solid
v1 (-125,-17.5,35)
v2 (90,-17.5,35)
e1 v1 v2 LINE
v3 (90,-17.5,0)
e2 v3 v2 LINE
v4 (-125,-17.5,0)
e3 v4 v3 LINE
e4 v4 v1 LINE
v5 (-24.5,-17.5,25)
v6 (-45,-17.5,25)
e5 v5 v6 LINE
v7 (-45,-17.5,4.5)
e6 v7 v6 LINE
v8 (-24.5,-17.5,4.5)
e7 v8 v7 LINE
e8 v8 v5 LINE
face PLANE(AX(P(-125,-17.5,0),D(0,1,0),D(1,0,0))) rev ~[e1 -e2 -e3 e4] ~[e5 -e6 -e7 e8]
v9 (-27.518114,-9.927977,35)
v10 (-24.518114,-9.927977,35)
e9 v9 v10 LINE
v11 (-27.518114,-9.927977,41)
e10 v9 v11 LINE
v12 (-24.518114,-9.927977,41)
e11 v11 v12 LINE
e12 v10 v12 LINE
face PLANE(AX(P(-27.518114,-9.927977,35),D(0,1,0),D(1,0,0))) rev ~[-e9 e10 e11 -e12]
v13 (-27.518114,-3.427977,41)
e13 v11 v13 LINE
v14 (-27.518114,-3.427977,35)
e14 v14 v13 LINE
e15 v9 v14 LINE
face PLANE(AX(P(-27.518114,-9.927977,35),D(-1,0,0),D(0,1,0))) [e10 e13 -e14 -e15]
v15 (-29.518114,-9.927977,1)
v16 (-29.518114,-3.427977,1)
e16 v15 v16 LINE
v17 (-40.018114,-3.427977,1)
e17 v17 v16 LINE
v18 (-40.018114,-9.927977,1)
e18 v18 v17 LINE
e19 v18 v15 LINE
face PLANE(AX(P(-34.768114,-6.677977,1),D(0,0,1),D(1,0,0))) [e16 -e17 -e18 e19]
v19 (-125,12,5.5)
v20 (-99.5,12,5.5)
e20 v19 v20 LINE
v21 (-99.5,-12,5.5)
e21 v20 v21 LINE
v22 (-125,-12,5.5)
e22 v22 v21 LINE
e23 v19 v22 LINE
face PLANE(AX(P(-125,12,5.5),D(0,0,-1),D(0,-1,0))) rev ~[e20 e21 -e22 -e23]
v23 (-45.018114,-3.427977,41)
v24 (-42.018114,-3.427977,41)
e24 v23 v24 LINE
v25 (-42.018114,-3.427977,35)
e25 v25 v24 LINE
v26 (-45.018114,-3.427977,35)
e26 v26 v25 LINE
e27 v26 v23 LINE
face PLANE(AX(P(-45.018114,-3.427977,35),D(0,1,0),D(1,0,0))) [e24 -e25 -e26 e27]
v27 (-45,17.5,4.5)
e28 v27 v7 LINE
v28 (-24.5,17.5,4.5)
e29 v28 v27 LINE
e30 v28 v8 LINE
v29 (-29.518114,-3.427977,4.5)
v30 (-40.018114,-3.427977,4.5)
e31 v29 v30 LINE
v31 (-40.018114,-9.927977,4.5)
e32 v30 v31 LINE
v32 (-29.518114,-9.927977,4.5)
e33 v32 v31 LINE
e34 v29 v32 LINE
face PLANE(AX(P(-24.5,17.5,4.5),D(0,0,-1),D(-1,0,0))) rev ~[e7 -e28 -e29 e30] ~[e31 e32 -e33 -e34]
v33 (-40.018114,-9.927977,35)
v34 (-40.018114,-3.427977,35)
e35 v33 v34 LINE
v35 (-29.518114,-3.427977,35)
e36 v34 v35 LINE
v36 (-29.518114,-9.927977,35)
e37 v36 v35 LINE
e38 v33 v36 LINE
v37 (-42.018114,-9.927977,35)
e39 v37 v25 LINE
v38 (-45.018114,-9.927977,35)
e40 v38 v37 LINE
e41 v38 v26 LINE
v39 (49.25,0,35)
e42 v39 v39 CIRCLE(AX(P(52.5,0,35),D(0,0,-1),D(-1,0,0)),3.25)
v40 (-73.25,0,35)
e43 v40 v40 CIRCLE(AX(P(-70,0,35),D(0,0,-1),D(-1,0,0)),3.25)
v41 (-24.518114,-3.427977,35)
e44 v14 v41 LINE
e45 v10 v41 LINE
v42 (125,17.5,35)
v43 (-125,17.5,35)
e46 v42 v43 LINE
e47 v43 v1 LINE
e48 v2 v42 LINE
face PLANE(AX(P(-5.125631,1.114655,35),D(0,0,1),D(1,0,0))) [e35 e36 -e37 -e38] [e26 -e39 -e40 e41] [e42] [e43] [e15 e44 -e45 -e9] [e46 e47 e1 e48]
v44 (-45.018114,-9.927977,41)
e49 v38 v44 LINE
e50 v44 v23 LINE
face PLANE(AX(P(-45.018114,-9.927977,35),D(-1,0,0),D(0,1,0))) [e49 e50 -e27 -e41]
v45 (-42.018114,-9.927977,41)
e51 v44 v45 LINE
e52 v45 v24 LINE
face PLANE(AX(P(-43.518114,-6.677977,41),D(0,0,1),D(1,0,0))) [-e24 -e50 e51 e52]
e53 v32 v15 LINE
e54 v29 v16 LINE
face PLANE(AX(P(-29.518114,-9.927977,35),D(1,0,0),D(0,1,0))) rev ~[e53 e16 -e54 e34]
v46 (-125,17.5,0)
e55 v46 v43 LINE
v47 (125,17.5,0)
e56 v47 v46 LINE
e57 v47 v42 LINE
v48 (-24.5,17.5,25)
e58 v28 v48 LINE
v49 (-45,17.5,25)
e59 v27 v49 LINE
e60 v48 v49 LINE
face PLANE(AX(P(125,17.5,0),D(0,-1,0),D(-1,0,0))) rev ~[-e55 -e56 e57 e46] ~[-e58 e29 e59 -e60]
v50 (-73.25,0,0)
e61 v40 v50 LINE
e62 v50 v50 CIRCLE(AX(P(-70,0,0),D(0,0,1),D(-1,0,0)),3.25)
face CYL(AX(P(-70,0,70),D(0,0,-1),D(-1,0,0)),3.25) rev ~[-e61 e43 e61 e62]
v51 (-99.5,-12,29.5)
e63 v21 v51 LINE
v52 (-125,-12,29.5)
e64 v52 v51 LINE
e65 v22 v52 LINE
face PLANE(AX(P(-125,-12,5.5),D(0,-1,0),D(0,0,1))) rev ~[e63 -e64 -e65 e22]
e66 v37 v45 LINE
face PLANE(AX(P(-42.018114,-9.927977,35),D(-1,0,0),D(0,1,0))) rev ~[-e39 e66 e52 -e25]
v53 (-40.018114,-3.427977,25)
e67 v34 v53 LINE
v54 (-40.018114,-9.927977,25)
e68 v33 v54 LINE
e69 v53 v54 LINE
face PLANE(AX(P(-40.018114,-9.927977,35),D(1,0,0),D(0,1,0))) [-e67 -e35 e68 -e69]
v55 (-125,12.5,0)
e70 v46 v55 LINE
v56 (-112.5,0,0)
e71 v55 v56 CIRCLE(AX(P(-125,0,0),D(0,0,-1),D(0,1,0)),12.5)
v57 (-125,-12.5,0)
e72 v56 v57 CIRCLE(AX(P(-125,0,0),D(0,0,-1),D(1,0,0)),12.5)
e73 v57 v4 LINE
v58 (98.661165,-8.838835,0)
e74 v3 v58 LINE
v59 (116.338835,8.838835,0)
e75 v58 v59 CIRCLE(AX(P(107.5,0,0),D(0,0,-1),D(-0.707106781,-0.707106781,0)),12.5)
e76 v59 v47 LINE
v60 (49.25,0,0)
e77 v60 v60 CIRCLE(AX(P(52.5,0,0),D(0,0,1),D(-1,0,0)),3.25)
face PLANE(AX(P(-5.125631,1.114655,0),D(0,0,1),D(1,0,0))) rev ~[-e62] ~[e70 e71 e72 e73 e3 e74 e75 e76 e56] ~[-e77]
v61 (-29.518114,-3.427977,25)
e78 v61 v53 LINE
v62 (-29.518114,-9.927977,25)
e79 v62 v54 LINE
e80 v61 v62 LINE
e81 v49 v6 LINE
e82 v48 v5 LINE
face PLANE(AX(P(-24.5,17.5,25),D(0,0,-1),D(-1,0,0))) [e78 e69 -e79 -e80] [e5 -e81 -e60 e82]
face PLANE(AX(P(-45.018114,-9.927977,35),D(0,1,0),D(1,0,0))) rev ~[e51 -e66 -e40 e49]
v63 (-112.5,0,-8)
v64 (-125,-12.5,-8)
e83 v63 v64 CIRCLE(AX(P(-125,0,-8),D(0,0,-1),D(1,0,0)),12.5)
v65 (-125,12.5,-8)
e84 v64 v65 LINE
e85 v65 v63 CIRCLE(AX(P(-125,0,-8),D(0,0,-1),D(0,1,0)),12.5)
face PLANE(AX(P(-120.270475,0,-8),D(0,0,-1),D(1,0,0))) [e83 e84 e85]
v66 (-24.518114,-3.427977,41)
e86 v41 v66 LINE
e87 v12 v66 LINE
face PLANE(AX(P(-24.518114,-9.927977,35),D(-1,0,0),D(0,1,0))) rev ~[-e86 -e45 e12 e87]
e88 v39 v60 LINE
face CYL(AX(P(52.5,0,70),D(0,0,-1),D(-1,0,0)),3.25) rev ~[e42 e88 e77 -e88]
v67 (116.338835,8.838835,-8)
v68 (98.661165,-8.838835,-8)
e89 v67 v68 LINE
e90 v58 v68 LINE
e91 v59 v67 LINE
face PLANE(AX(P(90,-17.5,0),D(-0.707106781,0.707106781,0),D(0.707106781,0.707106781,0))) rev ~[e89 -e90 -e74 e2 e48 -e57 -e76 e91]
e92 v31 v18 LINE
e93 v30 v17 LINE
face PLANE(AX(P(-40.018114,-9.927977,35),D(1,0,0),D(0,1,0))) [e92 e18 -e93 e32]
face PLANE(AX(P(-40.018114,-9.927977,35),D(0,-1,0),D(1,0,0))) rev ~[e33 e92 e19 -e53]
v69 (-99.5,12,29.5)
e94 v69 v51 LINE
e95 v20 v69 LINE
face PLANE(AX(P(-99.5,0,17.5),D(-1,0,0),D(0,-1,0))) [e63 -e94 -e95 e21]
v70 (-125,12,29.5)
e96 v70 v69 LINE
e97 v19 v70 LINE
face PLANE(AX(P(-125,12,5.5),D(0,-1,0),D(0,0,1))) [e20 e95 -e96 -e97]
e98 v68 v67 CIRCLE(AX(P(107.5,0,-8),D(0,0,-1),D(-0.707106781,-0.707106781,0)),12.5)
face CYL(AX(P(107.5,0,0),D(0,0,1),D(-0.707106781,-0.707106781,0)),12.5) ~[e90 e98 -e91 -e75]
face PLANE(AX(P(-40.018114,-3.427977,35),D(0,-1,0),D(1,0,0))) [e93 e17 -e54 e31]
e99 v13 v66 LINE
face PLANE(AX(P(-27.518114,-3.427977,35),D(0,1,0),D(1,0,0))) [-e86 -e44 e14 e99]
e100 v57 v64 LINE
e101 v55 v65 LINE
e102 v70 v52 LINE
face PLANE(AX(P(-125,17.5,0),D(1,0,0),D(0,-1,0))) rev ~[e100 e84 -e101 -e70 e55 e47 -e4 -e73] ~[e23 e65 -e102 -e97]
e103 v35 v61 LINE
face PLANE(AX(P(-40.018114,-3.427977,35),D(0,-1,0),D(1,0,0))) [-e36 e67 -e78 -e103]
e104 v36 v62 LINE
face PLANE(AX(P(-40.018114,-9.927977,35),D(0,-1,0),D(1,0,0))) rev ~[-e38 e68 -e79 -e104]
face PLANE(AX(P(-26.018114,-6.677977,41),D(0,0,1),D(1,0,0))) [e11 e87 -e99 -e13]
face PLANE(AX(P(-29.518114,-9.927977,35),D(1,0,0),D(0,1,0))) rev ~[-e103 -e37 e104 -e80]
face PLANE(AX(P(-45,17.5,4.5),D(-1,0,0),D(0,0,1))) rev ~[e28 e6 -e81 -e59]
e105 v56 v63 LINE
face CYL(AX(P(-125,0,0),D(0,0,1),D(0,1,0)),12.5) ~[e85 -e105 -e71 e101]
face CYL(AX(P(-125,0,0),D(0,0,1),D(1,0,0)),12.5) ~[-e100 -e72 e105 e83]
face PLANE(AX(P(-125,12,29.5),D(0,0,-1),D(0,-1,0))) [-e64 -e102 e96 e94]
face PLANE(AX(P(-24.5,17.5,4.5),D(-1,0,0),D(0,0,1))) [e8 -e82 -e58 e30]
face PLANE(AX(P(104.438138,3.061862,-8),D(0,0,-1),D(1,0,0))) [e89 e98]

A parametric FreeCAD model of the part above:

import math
import FreeCAD as App
import Part
import Sketcher

V = App.Vector
Q = App.Units.Quantity


def add_polygon(sketch, points):
    """Adds a closed chain of lines whose ends are joined by coincident constraints."""
    first, n = sketch.GeometryCount, len(points)
    for a, b in zip(points, points[1:] + points[:1]):
        sketch.addGeometry(Part.LineSegment(App.Vector(*a, 0), App.Vector(*b, 0)), False)
    for i in range(n):
        sketch.addConstraint(Sketcher.Constraint("Coincident", first + i, 2, first + (i + 1) % n, 1))

doc = App.newDocument("Part")
body = doc.addObject("PartDesign::Body", "Body")

sketch1 = body.newObject("Sketcher::SketchObject", "Sketch")
sketch1.AttachmentSupport = (doc.getObject("XY_Plane"), [""])
sketch1.MapMode = "FlatFace"
add_polygon(sketch1, [(90, -17.5), (125, 17.5), (-125, 17.5), (-125, -17.5)])
sketch1.addConstraint(Sketcher.Constraint("Horizontal", 1))
sketch1.addConstraint(Sketcher.Constraint("Vertical", 2))
sketch1.addConstraint(Sketcher.Constraint("Horizontal", 3))
sketch1.addConstraint(Sketcher.Constraint("Symmetric", 0, 2, 2, 2, -1, 1))
sketch1.addConstraint(Sketcher.Constraint("DistanceX", 1, 2, 1, 1, 250.0))
sketch1.addConstraint(Sketcher.Constraint("DistanceX", 3, 1, 3, 2, 215.0))
sketch1.addConstraint(Sketcher.Constraint("DistanceY", 2, 2, 2, 1, 35.0))
pad1 = body.newObject("PartDesign::Pad", "Pad")
pad1.Profile = sketch1
pad1.Length = 35

sketch2 = body.newObject("Sketcher::SketchObject", "Sketch001")
sketch2.AttachmentSupport = (doc.getObject("XY_Plane"), [""])
sketch2.MapMode = "FlatFace"
sketch2.AttachmentOffset = App.Placement(V(0, 0, 35), App.Rotation())
sketch2.addGeometry(Part.Circle(V(-70, 0, 0), V(0, 0, 1), 3.25), False)
sketch2.addConstraint(Sketcher.Constraint("PointOnObject", 0, 3, -1))
sketch2.addConstraint(Sketcher.Constraint("Diameter", 0, 6.5))
sketch2.addConstraint(Sketcher.Constraint("DistanceX", 0, 3, -1, 1, 70.0))
doc.recompute()
hole = body.newObject("PartDesign::Hole", "Hole")
hole.Profile = sketch2
hole.ThreadType = "None"
hole.Diameter = 6.5
hole.DepthType = "Dimension"
hole.Depth = 35
hole.DrillPoint = "Angled"
hole.DrillPointAngle = 118

sketch3 = body.newObject("Sketcher::SketchObject", "Sketch002")
sketch3.AttachmentSupport = (doc.getObject("XY_Plane"), [""])
sketch3.MapMode = "FlatFace"
sketch3.AttachmentOffset = App.Placement(V(0, 0, 35), App.Rotation())
sketch3.addGeometry(Part.Circle(V(52.5, 0, 0), V(0, 0, 1), 3.25), False)
sketch3.addConstraint(Sketcher.Constraint("PointOnObject", 0, 3, -1))
sketch3.addConstraint(Sketcher.Constraint("Diameter", 0, 6.5))
sketch3.addConstraint(Sketcher.Constraint("DistanceX", -1, 1, 0, 3, 52.5))
doc.recompute()
hole2 = body.newObject("PartDesign::Hole", "Hole001")
hole2.Profile = sketch3
hole2.ThreadType = "None"
hole2.Diameter = 6.5
hole2.DepthType = "Dimension"
hole2.Depth = 35
hole2.DrillPoint = "Angled"
hole2.DrillPointAngle = 118

sketch4 = body.newObject("Sketcher::SketchObject", "Sketch003")
sketch4.AttachmentSupport = (doc.getObject("YZ_Plane"), [""])
sketch4.MapMode = "FlatFace"
sketch4.AttachmentOffset = App.Placement(V(0, 0, -125), App.Rotation())
add_polygon(sketch4, [(12, 29.5), (12, 5.5), (-12, 5.5), (-12, 29.5)])
sketch4.addConstraint(Sketcher.Constraint("Vertical", 0))
sketch4.addConstraint(Sketcher.Constraint("Horizontal", 1))
sketch4.addConstraint(Sketcher.Constraint("Vertical", 2))
sketch4.addConstraint(Sketcher.Constraint("Horizontal", 3))
sketch4.addConstraint(Sketcher.Constraint("Equal", 3, 0))
sketch4.addConstraint(Sketcher.Constraint("DistanceX", 1, 2, 1, 1, 24.0))
sketch4.addConstraint(Sketcher.Constraint("DistanceX", -1, 1, 0, 2, 12.0))
sketch4.addConstraint(Sketcher.Constraint("DistanceY", -1, 1, 0, 2, 5.5))
pocket1 = body.newObject("PartDesign::Pocket", "Pocket")
pocket1.Profile = sketch4
pocket1.Length = 25.5
pocket1.Reversed = True

sketch5 = body.newObject("Sketcher::SketchObject", "Sketch004")
sketch5.AttachmentSupport = (doc.getObject("XY_Plane"), [""])
sketch5.MapMode = "FlatFace"
sketch5.addGeometry(Part.LineSegment(V(116.338835, 8.838835, 0), V(98.661165, -8.838835, 0)), False)
sketch5.addGeometry(Part.ArcOfCircle(Part.Circle(V(107.5, 0, 0), V(0, 0, 1), 12.5), math.radians(45), math.radians(225)), False)
sketch5.addConstraint(Sketcher.Constraint("Coincident", 0, 1, 1, 1))
sketch5.addConstraint(Sketcher.Constraint("Coincident", 1, 2, 0, 2))
sketch5.addConstraint(Sketcher.Constraint("PointOnObject", 1, 3, -1))
sketch5.addConstraint(Sketcher.Constraint("Radius", 1, 12.5))
sketch5.addConstraint(Sketcher.Constraint("Angle", 0, Q("-135 deg")))
sketch5.addConstraint(Sketcher.Constraint("DistanceX", -1, 1, 1, 3, 107.5))
sketch5.addConstraint(Sketcher.Constraint("DistanceX", -1, 1, 0, 1, 116.338835))
pad2 = body.newObject("PartDesign::Pad", "Pad001")
pad2.Profile = sketch5
pad2.Length = 8
pad2.Reversed = True

sketch6 = body.newObject("Sketcher::SketchObject", "Sketch005")
sketch6.AttachmentSupport = (doc.getObject("XY_Plane"), [""])
sketch6.MapMode = "FlatFace"
sketch6.addGeometry(Part.ArcOfCircle(Part.Circle(V(-125, 0, 0), V(0, 0, 1), 12.5), math.radians(0), math.radians(90)), False)
sketch6.addGeometry(Part.ArcOfCircle(Part.Circle(V(-125, 0, 0), V(0, 0, 1), 12.5), math.radians(-90), math.radians(0)), False)
sketch6.addGeometry(Part.LineSegment(V(-125, -12.5, 0), V(-125, 12.5, 0)), False)
sketch6.addConstraint(Sketcher.Constraint("Tangent", 0, 1, 1, 2))
sketch6.addConstraint(Sketcher.Constraint("Coincident", 1, 1, 2, 1))
sketch6.addConstraint(Sketcher.Constraint("Coincident", 2, 2, 0, 2))
sketch6.addConstraint(Sketcher.Constraint("Vertical", 2))
sketch6.addConstraint(Sketcher.Constraint("Equal", 0, 1))
sketch6.addConstraint(Sketcher.Constraint("PointOnObject", 0, 3, -1))
sketch6.addConstraint(Sketcher.Constraint("PointOnObject", 0, 1, -1))
sketch6.addConstraint(Sketcher.Constraint("Vertical", 0, 3, 1, 1))
sketch6.addConstraint(Sketcher.Constraint("Radius", 0, 12.5))
sketch6.addConstraint(Sketcher.Constraint("DistanceX", 0, 3, -1, 1, 125.0))
pad3 = body.newObject("PartDesign::Pad", "Pad002")
pad3.Profile = sketch6
pad3.Length = 8
pad3.Reversed = True

sketch7 = body.newObject("Sketcher::SketchObject", "Sketch006")
sketch7.AttachmentSupport = (doc.getObject("XZ_Plane"), [""])
sketch7.MapMode = "FlatFace"
sketch7.AttachmentOffset = App.Placement(V(0, 0, -17.5), App.Rotation())
add_polygon(sketch7, [(-24.5, 25), (-24.5, 4.5), (-45, 4.5), (-45, 25)])
sketch7.addConstraint(Sketcher.Constraint("Vertical", 0))
sketch7.addConstraint(Sketcher.Constraint("Horizontal", 1))
sketch7.addConstraint(Sketcher.Constraint("Vertical", 2))
sketch7.addConstraint(Sketcher.Constraint("Horizontal", 3))
sketch7.addConstraint(Sketcher.Constraint("Equal", 3, 0))
sketch7.addConstraint(Sketcher.Constraint("DistanceX", 1, 2, 1, 1, 20.5))
sketch7.addConstraint(Sketcher.Constraint("DistanceX", 1, 2, -1, 1, 45.0))
sketch7.addConstraint(Sketcher.Constraint("DistanceY", -1, 1, 2, 2, 25.0))
pocket2 = body.newObject("PartDesign::Pocket", "Pocket001")
pocket2.Profile = sketch7
pocket2.Length = 100
pocket2.Reversed = True

sketch8 = body.newObject("Sketcher::SketchObject", "Sketch007")
sketch8.AttachmentSupport = (doc.getObject("XY_Plane"), [""])
sketch8.MapMode = "FlatFace"
sketch8.AttachmentOffset = App.Placement(V(0, 0, 35), App.Rotation())
add_polygon(sketch8, [(-40.018114, -3.427977), (-40.018114, -9.927977), (-29.518114, -9.927977), (-29.518114, -3.427977)])
sketch8.addConstraint(Sketcher.Constraint("Vertical", 0))
sketch8.addConstraint(Sketcher.Constraint("Horizontal", 1))
sketch8.addConstraint(Sketcher.Constraint("Vertical", 2))
sketch8.addConstraint(Sketcher.Constraint("Horizontal", 3))
sketch8.addConstraint(Sketcher.Constraint("DistanceX", 1, 1, 1, 2, 10.5))
sketch8.addConstraint(Sketcher.Constraint("DistanceY", 0, 2, 0, 1, 6.5))
sketch8.addConstraint(Sketcher.Constraint("DistanceX", 0, 2, -1, 1, 40.018114))
sketch8.addConstraint(Sketcher.Constraint("DistanceY", 0, 2, -1, 1, 9.927977))
pocket3 = body.newObject("PartDesign::Pocket", "Pocket002")
pocket3.Profile = sketch8
pocket3.Length = 34

sketch9 = body.newObject("Sketcher::SketchObject", "Sketch008")
sketch9.AttachmentSupport = (doc.getObject("XY_Plane"), [""])
sketch9.MapMode = "FlatFace"
sketch9.AttachmentOffset = App.Placement(V(0, 0, 35), App.Rotation())
add_polygon(sketch9, [(-45.018114, -3.427977), (-45.018114, -9.927977), (-42.018114, -9.927977), (-42.018114, -3.427977)])
add_polygon(sketch9, [(-27.518114, -3.427977), (-27.518114, -9.927977), (-24.518114, -9.927977), (-24.518114, -3.427977)])
sketch9.addConstraint(Sketcher.Constraint("Vertical", 0))
sketch9.addConstraint(Sketcher.Constraint("Horizontal", 1))
sketch9.addConstraint(Sketcher.Constraint("Vertical", 2))
sketch9.addConstraint(Sketcher.Constraint("Horizontal", 3))
sketch9.addConstraint(Sketcher.Constraint("Vertical", 4))
sketch9.addConstraint(Sketcher.Constraint("Horizontal", 5))
sketch9.addConstraint(Sketcher.Constraint("Vertical", 6))
sketch9.addConstraint(Sketcher.Constraint("Horizontal", 7))
sketch9.addConstraint(Sketcher.Constraint("Horizontal", 1, 2, 4, 2))
sketch9.addConstraint(Sketcher.Constraint("Horizontal", 3, 2, 6, 2))
sketch9.addConstraint(Sketcher.Constraint("Equal", 3, 5))
sketch9.addConstraint(Sketcher.Constraint("DistanceX", 1, 1, 1, 2, 3.0))
sketch9.addConstraint(Sketcher.Constraint("DistanceY", 0, 2, 0, 1, 6.5))
sketch9.addConstraint(Sketcher.Constraint("DistanceX", 1, 2, 4, 2, 14.5))
sketch9.addConstraint(Sketcher.Constraint("DistanceX", 0, 2, -1, 1, 45.018114))
sketch9.addConstraint(Sketcher.Constraint("DistanceY", 0, 2, -1, 1, 9.927977))
pad4 = body.newObject("PartDesign::Pad", "Pad003")
pad4.Profile = sketch9
pad4.Length = 6

doc.recompute()
